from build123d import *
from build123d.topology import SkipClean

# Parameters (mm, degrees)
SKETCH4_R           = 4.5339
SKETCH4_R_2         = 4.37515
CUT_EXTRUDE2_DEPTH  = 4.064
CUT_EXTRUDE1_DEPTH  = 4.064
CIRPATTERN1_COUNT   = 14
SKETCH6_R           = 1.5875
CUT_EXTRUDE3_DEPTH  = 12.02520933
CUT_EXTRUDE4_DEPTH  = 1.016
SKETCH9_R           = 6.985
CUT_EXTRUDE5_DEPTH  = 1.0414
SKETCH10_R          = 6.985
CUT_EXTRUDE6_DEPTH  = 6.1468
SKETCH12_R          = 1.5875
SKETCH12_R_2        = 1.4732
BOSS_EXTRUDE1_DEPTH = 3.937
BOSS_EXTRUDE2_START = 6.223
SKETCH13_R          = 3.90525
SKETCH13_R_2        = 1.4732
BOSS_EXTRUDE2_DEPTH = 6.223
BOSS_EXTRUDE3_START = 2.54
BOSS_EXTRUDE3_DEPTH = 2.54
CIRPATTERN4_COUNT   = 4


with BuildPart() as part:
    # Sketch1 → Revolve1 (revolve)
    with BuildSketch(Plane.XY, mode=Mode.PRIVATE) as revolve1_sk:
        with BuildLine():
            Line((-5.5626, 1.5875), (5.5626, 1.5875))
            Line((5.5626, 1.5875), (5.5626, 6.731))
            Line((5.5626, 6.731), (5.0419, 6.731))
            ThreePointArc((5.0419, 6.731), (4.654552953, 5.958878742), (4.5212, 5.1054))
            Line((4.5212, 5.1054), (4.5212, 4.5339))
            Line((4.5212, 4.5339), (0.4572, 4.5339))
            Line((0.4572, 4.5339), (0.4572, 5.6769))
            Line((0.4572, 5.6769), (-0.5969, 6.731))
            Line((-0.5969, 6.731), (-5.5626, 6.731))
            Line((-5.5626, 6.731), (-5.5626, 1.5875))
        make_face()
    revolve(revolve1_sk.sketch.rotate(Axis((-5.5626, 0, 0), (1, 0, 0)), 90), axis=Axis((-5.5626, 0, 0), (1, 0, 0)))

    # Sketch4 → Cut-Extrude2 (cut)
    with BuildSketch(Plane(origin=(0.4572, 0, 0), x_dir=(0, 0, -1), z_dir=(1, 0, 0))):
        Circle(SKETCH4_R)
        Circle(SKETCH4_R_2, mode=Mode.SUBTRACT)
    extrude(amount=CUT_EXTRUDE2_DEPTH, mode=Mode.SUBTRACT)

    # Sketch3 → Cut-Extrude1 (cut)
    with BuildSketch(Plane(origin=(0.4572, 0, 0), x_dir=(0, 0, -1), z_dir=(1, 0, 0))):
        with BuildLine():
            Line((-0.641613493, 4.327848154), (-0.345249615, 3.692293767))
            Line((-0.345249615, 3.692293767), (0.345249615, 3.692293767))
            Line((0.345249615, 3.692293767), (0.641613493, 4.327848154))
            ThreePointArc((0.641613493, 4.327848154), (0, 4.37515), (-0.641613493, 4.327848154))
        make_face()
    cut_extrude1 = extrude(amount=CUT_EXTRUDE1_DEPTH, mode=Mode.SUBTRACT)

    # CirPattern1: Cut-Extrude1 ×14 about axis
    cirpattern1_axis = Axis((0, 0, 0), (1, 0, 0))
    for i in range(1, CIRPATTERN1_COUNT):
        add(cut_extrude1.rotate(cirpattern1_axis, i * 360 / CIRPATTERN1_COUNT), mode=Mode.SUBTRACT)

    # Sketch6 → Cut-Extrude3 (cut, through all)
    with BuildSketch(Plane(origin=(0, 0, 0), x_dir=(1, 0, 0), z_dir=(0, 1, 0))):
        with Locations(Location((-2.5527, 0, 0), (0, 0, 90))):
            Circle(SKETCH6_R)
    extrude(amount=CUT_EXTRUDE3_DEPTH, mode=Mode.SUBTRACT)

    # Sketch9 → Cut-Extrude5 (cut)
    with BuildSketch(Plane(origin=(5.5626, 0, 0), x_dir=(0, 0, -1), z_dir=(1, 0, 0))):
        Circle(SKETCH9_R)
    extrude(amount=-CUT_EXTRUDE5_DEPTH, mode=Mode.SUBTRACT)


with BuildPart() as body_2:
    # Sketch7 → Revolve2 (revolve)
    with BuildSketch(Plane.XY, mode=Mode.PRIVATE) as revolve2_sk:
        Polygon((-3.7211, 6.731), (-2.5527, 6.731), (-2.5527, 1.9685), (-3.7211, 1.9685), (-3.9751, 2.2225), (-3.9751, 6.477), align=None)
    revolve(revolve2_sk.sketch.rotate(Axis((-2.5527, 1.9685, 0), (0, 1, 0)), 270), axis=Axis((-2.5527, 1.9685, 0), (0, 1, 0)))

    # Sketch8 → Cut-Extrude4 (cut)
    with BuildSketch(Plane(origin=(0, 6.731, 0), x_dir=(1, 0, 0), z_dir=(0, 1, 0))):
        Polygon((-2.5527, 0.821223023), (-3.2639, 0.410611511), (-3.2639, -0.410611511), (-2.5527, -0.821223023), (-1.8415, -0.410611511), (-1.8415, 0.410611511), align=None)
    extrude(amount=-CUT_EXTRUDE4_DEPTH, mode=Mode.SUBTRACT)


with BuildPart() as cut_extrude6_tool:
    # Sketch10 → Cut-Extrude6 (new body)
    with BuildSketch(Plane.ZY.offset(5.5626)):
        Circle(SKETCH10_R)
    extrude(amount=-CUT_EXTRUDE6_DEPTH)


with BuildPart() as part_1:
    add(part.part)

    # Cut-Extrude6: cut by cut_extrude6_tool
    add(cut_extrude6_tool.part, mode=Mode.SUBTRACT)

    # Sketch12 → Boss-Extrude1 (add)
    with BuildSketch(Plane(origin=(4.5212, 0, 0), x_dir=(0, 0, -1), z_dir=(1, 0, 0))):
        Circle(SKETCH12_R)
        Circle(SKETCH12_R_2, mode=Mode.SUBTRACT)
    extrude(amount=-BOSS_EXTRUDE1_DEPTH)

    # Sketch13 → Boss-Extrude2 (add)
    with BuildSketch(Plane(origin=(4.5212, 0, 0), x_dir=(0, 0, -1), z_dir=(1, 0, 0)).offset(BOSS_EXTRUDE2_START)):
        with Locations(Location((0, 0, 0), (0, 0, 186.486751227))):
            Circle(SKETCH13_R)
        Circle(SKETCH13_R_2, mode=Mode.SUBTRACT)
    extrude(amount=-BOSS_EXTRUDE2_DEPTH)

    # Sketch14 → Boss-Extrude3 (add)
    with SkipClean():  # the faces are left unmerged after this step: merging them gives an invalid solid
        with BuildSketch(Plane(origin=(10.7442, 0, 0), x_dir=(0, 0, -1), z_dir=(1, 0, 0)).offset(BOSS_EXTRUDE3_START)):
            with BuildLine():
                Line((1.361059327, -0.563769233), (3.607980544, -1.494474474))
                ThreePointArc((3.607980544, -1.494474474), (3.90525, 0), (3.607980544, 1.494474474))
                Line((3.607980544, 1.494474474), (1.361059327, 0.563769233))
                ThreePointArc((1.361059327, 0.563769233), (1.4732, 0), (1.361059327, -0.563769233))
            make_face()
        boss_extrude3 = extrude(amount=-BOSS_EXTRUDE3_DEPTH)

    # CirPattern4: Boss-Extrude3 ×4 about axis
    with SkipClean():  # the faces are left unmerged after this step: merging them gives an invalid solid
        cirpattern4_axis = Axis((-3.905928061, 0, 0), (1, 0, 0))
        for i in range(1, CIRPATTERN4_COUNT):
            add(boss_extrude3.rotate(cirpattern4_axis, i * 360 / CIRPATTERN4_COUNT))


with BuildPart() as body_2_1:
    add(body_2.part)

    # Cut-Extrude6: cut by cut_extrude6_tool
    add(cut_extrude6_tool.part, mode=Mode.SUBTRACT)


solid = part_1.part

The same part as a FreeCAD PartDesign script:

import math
import FreeCAD as App
import Part
import Sketcher

V = App.Vector
Q = App.Units.Quantity

doc = App.newDocument("Part")
body = doc.addObject("PartDesign::Body", "Body")

# Sketch on XY plane
sketch1 = body.newObject("Sketcher::SketchObject", "Sketch")
sketch1.AttachmentSupport = (doc.getObject("XY_Plane"), [""])
sketch1.MapMode = "FlatFace"
sketch1.addGeometry([
    Part.LineSegment(V(-5.5626, 1.5875, 0), V(5.5626, 1.5875, 0)),  # 0
    Part.LineSegment(V(5.5626, 1.5875, 0), V(5.5626, 6.731, 0)),  # 1
    Part.LineSegment(V(5.5626, 6.731, 0), V(5.0419, 6.731, 0)),  # 2
    Part.ArcOfCircle(Part.Circle(V(7.319072, 5.1054, 0), V(0, 0, 1), 2.797872), math.radians(144.478176), math.radians(180)),  # 3
    Part.LineSegment(V(4.5212, 5.1054, 0), V(4.5212, 4.5339, 0)),  # 4
    Part.LineSegment(V(4.5212, 4.5339, 0), V(0.4572, 4.5339, 0)),  # 5
    Part.LineSegment(V(0.4572, 4.5339, 0), V(0.4572, 5.6769, 0)),  # 6
    Part.LineSegment(V(0.4572, 5.6769, 0), V(-0.5969, 6.731, 0)),  # 7
    Part.LineSegment(V(-0.5969, 6.731, 0), V(-5.5626, 6.731, 0)),  # 8
    Part.LineSegment(V(-5.5626, 6.731, 0), V(-5.5626, 1.5875, 0)),  # 9
], False)
sketch1.addConstraint([
    Sketcher.Constraint("Coincident", 0, 2, 1, 1),
    Sketcher.Constraint("Coincident", 1, 2, 2, 1),
    Sketcher.Constraint("Coincident", 2, 2, 3, 1),
    Sketcher.Constraint("Tangent", 3, 2, 4, 1),
    Sketcher.Constraint("Coincident", 4, 2, 5, 1),
    Sketcher.Constraint("Coincident", 5, 2, 6, 1),
    Sketcher.Constraint("Coincident", 6, 2, 7, 1),
    Sketcher.Constraint("Coincident", 7, 2, 8, 1),
    Sketcher.Constraint("Coincident", 8, 2, 9, 1),
    Sketcher.Constraint("Coincident", 9, 2, 0, 1),
    Sketcher.Constraint("Horizontal", 0),
    Sketcher.Constraint("Vertical", 1),
    Sketcher.Constraint("Horizontal", 2),
    Sketcher.Constraint("Vertical", 4),
    Sketcher.Constraint("Horizontal", 5),
    Sketcher.Constraint("Vertical", 6),
    Sketcher.Constraint("Horizontal", 8),
    Sketcher.Constraint("Vertical", 9),
    Sketcher.Constraint("Symmetric", 1, 2, 8, 2, -2),
    Sketcher.Constraint("Angle", 7, Q("135 deg")),
    Sketcher.Constraint("DistanceX", 5, 2, 5, 1, Q("0.16 in")),
    Sketcher.Constraint("DistanceX", 0, 1, 0, 2, Q("0.438 in")),
    Sketcher.Constraint("DistanceY", 6, 1, 6, 2, Q("0.045 in")),
    Sketcher.Constraint("DistanceX", 2, 2, 2, 1, Q("0.0205 in")),
    Sketcher.Constraint("DistanceX", 8, 2, 8, 1, Q("0.1955 in")),
    Sketcher.Constraint("DistanceY", 1, 1, 1, 2, Q("0.2025 in")),
    Sketcher.Constraint("DistanceY", 4, 2, 4, 1, Q("0.0225 in")),
    Sketcher.Constraint("DistanceY", -1, 1, 3, 3, Q("0.201 in")),
    Sketcher.Constraint("DistanceY", -1, 1, 0, 2, Q("0.0625 in")),
])
revolution = body.newObject("PartDesign::Revolution", "Revolution")
revolution.Profile = sketch1
revolution.ReferenceAxis = (sketch1, ["H_Axis"])
revolution.Angle = 360

# Sketch on YZ plane
sketch2 = body.newObject("Sketcher::SketchObject", "Sketch001")
sketch2.AttachmentSupport = (doc.getObject("YZ_Plane"), [""])
sketch2.MapMode = "FlatFace"
sketch2.AttachmentOffset = App.Placement(V(0, 0, 0.018 * 25.4), App.Rotation())
sketch2.addGeometry([
    Part.Circle(V(0, 0, 0), V(0, 0, 1), 4.5339),
    Part.Circle(V(0, 0, 0), V(0, 0, 1), 4.37515),
], False)
sketch2.addConstraint([
    Sketcher.Constraint("Coincident", 0, 3, -1, 1),
    Sketcher.Constraint("Coincident", 1, 3, -1, 1),
    Sketcher.Constraint("Diameter", 0, Q("0.357 in")),
    Sketcher.Constraint("Diameter", 1, Q("0.3445 in")),
])
pocket1 = body.newObject("PartDesign::Pocket", "Pocket")
pocket1.Profile = sketch2
pocket1.Length = Q("0.16 in")
pocket1.Reversed = True

# Sketch on YZ plane
sketch3 = body.newObject("Sketcher::SketchObject", "Sketch002")
sketch3.AttachmentSupport = (doc.getObject("YZ_Plane"), [""])
sketch3.MapMode = "FlatFace"
sketch3.AttachmentOffset = App.Placement(V(0, 0, 0.018 * 25.4), App.Rotation())
sketch3.addGeometry([
    Part.LineSegment(V(4.327848, 0.641613, 0), V(3.692294, 0.34525, 0)),
    Part.LineSegment(V(3.692294, 0.34525, 0), V(3.692294, -0.34525, 0)),
    Part.LineSegment(V(3.692294, -0.34525, 0), V(4.327848, -0.641613, 0)),
    Part.ArcOfCircle(Part.Circle(V(0, 0, 0), V(0, 0, 1), 4.37515), math.radians(-8.432809), math.radians(8.432809)),
], False)
sketch3.addConstraint([
    Sketcher.Constraint("Coincident", 0, 2, 1, 1),
    Sketcher.Constraint("Coincident", 1, 2, 2, 1),
    Sketcher.Constraint("Coincident", 2, 2, 3, 1),
    Sketcher.Constraint("Coincident", 3, 2, 0, 1),
    Sketcher.Constraint("Vertical", 1),
    Sketcher.Constraint("Coincident", 3, 3, -1, 1),
    Sketcher.Constraint("Vertical", 2, 2, 3, 2),
    Sketcher.Constraint("Equal", 0, 2),
    Sketcher.Constraint("Angle", 0, Q("-155 deg")),
    Sketcher.Constraint("Radius", 3, Q("4.37515 mm")),
    Sketcher.Constraint("DistanceY", 1, 2, 1, 1, Q("0.690499 mm")),
    Sketcher.Constraint("DistanceX", -1, 1, 2, 2, Q("4.327848 mm")),
])
pocket2 = body.newObject("PartDesign::Pocket", "Pocket001")
pocket2.Profile = sketch3
pocket2.Length = Q("0.16 in")
pocket2.Reversed = True
doc.recompute()

polarpattern = body.newObject("PartDesign::PolarPattern", "PolarPattern")
polarpattern.Originals = [pocket2]
polarpattern.Axis = (doc.getObject("X_Axis"), [""])
polarpattern.Angle = 360
polarpattern.Occurrences = 14
body.Tip = polarpattern

# Sketch on XZ plane
sketch4 = body.newObject("Sketcher::SketchObject", "Sketch003")
sketch4.AttachmentSupport = (doc.getObject("XZ_Plane"), [""])
sketch4.MapMode = "FlatFace"
sketch4.addGeometry(Part.Circle(V(-2.5527, 0, 0), V(0, 0, 1), 1.5875), False)
sketch4.addConstraint([
    Sketcher.Constraint("PointOnObject", 0, 3, -1),
    Sketcher.Constraint("Diameter", 0, Q("0.125 in")),
    Sketcher.Constraint("DistanceX", 0, 3, -1, 1, Q("0.1005 in")),
])
pocket3 = body.newObject("PartDesign::Pocket", "Pocket002")
pocket3.Profile = sketch4
pocket3.Type = "ThroughAll"

# Sketch on YZ plane
sketch5 = body.newObject("Sketcher::SketchObject", "Sketch004")
sketch5.AttachmentSupport = (doc.getObject("YZ_Plane"), [""])
sketch5.MapMode = "FlatFace"
sketch5.AttachmentOffset = App.Placement(V(0, 0, 0.219 * 25.4), App.Rotation())
sketch5.addGeometry(Part.Circle(V(0, 0, 0), V(0, 0, 1), 6.985), False)
sketch5.addConstraint([
    Sketcher.Constraint("Coincident", 0, 3, -1, 1),
    Sketcher.Constraint("Diameter", 0, Q("0.55 in")),
])
pocket4 = body.newObject("PartDesign::Pocket", "Pocket003")
pocket4.Profile = sketch5
pocket4.Length = Q("0.041 in")
body2 = doc.addObject("PartDesign::Body", "Body001")

# Sketch on XY plane
sketch6 = body2.newObject("Sketcher::SketchObject", "Sketch005")
sketch6.AttachmentSupport = (doc.getObject("XY_Plane001"), [""])
sketch6.MapMode = "FlatFace"
sketch6.addGeometry([
    Part.LineSegment(V(-2.5527, 6.731, 0), V(-3.7211, 6.731, 0)),  # 0
    Part.LineSegment(V(-3.7211, 6.731, 0), V(-3.9751, 6.477, 0)),  # 1
    Part.LineSegment(V(-3.9751, 6.477, 0), V(-3.9751, 2.2225, 0)),  # 2
    Part.LineSegment(V(-3.9751, 2.2225, 0), V(-3.7211, 1.9685, 0)),  # 3
    Part.LineSegment(V(-3.7211, 1.9685, 0), V(-2.5527, 1.9685, 0)),  # 4
    Part.LineSegment(V(-2.5527, 1.9685, 0), V(-2.5527, 6.731, 0)),  # 5
], False)
sketch6.addGeometry(Part.LineSegment(V(-2.5527, 1.9685, 0), V(-2.5527, 6.731, 0)), True)  # axis
sketch6.addConstraint([
    Sketcher.Constraint("Coincident", 0, 2, 1, 1),
    Sketcher.Constraint("Coincident", 1, 2, 2, 1),
    Sketcher.Constraint("Coincident", 2, 2, 3, 1),
    Sketcher.Constraint("Coincident", 3, 2, 4, 1),
    Sketcher.Constraint("Coincident", 4, 2, 5, 1),
    Sketcher.Constraint("Coincident", 5, 2, 0, 1),
    Sketcher.Constraint("Horizontal", 0),
    Sketcher.Constraint("Vertical", 2),
    Sketcher.Constraint("Horizontal", 4),
    Sketcher.Constraint("Vertical", 5),
    Sketcher.Constraint("Vertical", 6),
    Sketcher.Constraint("Coincident", 6, 1, 4, 2),
    Sketcher.Constraint("Perpendicular", 1, 3),
    Sketcher.Constraint("Horizontal", 0, 2, 6, 2),
    Sketcher.Constraint("Vertical", 0, 2, 3, 2),
    Sketcher.Constraint("Equal", 1, 3),
    Sketcher.Constraint("DistanceX", 0, 2, 0, 1, Q("0.046 in")),
    Sketcher.Constraint("DistanceY", 5, 1, 5, 2, Q("0.1875 in")),
    Sketcher.Constraint("DistanceX", 1, 2, 0, 2, Q("0.01 in")),
    Sketcher.Constraint("DistanceY", -1, 1, 0, 2, Q("0.265 in")),
    Sketcher.Constraint("DistanceX", 0, 2, -1, 1, Q("0.1465 in")),
])
revolution2 = body2.newObject("PartDesign::Revolution", "Revolution001")
revolution2.Profile = sketch6
revolution2.ReferenceAxis = (sketch6, ["Axis0"])
revolution2.Angle = 360

# Sketch on XZ plane
sketch7 = body2.newObject("Sketcher::SketchObject", "Sketch006")
sketch7.AttachmentSupport = (doc.getObject("XZ_Plane001"), [""])
sketch7.MapMode = "FlatFace"
sketch7.AttachmentOffset = App.Placement(V(0, 0, -0.265 * 25.4), App.Rotation())
sketch7.addGeometry([
    Part.LineSegment(V(-2.5527, -0.821223, 0), V(-3.2639, -0.410612, 0)),  # 0
    Part.LineSegment(V(-3.2639, -0.410612, 0), V(-3.2639, 0.410612, 0)),  # 1
    Part.LineSegment(V(-3.2639, 0.410612, 0), V(-2.5527, 0.821223, 0)),  # 2
    Part.LineSegment(V(-2.5527, 0.821223, 0), V(-1.8415, 0.410612, 0)),  # 3
    Part.LineSegment(V(-1.8415, 0.410612, 0), V(-1.8415, -0.410612, 0)),  # 4
    Part.LineSegment(V(-1.8415, -0.410612, 0), V(-2.5527, -0.821223, 0)),  # 5
], False)
sketch7.addConstraint([
    Sketcher.Constraint("Coincident", 0, 2, 1, 1),
    Sketcher.Constraint("Coincident", 1, 2, 2, 1),
    Sketcher.Constraint("Coincident", 2, 2, 3, 1),
    Sketcher.Constraint("Coincident", 3, 2, 4, 1),
    Sketcher.Constraint("Coincident", 4, 2, 5, 1),
    Sketcher.Constraint("Coincident", 5, 2, 0, 1),
    Sketcher.Constraint("Vertical", 1),
    Sketcher.Constraint("Vertical", 4),
    Sketcher.Constraint("Symmetric", 2, 2, 5, 2, -1),
    Sketcher.Constraint("Parallel", 0, 3),
    Sketcher.Constraint("Parallel", 2, 5),
    Sketcher.Constraint("Horizontal", 1, 2, 3, 2),
    Sketcher.Constraint("Horizontal", 0, 2, 4, 2),
    Sketcher.Constraint("Angle", 0, Q("150 deg")),
    Sketcher.Constraint("DistanceX", 1, 2, 2, 2, Q("0.028 in")),
    Sketcher.Constraint("DistanceX", 0, 2, -1, 1, Q("0.1285 in")),
    Sketcher.Constraint("DistanceY", 1, 1, 1, 2, Q("0.821223 mm")),
])
pocket5 = body2.newObject("PartDesign::Pocket", "Pocket004")
pocket5.Profile = sketch7
pocket5.Length = Q("0.04 in")
pocket5.Reversed = True
body3 = doc.addObject("PartDesign::Body", "Body002")

# Sketch on YZ plane
sketch8 = body3.newObject("Sketcher::SketchObject", "Sketch007")
sketch8.AttachmentSupport = (doc.getObject("YZ_Plane002"), [""])
sketch8.MapMode = "FlatFace"
sketch8.AttachmentOffset = App.Placement(V(0, 0, -0.219 * 25.4), App.Rotation())
sketch8.addGeometry(Part.Circle(V(0, 0, 0), V(0, 0, 1), 6.985), False)
sketch8.addConstraint([
    Sketcher.Constraint("Coincident", 0, 3, -1, 1),
    Sketcher.Constraint("Diameter", 0, Q("0.55 in")),
])
pad1 = body3.newObject("PartDesign::Pad", "Pad")
pad1.Profile = sketch8
pad1.Length = Q("0.242 in")
doc.recompute()

body4 = doc.addObject("PartDesign::Body", "Body003")
body4.BaseFeature = body3
boolean = body.newObject("PartDesign::Boolean", "Boolean")
boolean.Type = "Cut"
boolean.addObjects([body4])
doc.recompute()

# Sketch on YZ plane
sketch9 = body.newObject("Sketcher::SketchObject", "Sketch008")
sketch9.AttachmentSupport = (doc.getObject("YZ_Plane"), [""])
sketch9.MapMode = "FlatFace"
sketch9.AttachmentOffset = App.Placement(V(0, 0, 0.178 * 25.4), App.Rotation())
sketch9.addGeometry([
    Part.Circle(V(0, 0, 0), V(0, 0, 1), 1.5875),
    Part.Circle(V(0, 0, 0), V(0, 0, 1), 1.4732),
], False)
sketch9.addConstraint([
    Sketcher.Constraint("Coincident", 0, 3, -1, 1),
    Sketcher.Constraint("Coincident", 1, 3, -1, 1),
    Sketcher.Constraint("Diameter", 0, Q("0.125 in")),
    Sketcher.Constraint("Diameter", 1, Q("0.116 in")),
])
pad2 = body.newObject("PartDesign::Pad", "Pad001")
pad2.Profile = sketch9
pad2.Length = Q("0.155 in")
pad2.Reversed = True

# Sketch on YZ plane
sketch10 = body.newObject("Sketcher::SketchObject", "Sketch009")
sketch10.AttachmentSupport = (doc.getObject("YZ_Plane"), [""])
sketch10.MapMode = "FlatFace"
sketch10.AttachmentOffset = App.Placement(V(0, 0, 0.423 * 25.4), App.Rotation())
sketch10.addGeometry([
    Part.Circle(V(0, 0, 0), V(0, 0, 1), 3.90525),
    Part.Circle(V(0, 0, 0), V(0, 0, 1), 1.4732),
], False)
sketch10.addConstraint([
    Sketcher.Constraint("Coincident", 0, 3, -1, 1),
    Sketcher.Constraint("Coincident", 1, 3, -1, 1),
    Sketcher.Constraint("Diameter", 1, Q("0.116 in")),
    Sketcher.Constraint("Diameter", 0, Q("0.3075 in")),
])
pad3 = body.newObject("PartDesign::Pad", "Pad002")
pad3.Profile = sketch10
pad3.Length = Q("0.245 in")
pad3.Reversed = True

# Sketch on YZ plane
sketch11 = body.newObject("Sketcher::SketchObject", "Sketch010")
sketch11.AttachmentSupport = (doc.getObject("YZ_Plane"), [""])
sketch11.MapMode = "FlatFace"
sketch11.AttachmentOffset = App.Placement(V(0, 0, 0.523 * 25.4), App.Rotation())
sketch11.addGeometry([
    Part.LineSegment(V(-0.563769, -1.361059, 0), V(-1.494474, -3.607981, 0)),
    Part.ArcOfCircle(Part.Circle(V(0, 0, 0), V(0, 0, 1), 3.90525), math.radians(-112.5), math.radians(-67.5)),
    Part.LineSegment(V(1.494474, -3.607981, 0), V(0.563769, -1.361059, 0)),
    Part.ArcOfCircle(Part.Circle(V(0, 0, 0), V(0, 0, 1), 1.4732), math.radians(-112.5), math.radians(-67.5)),
], False)
sketch11.addConstraint([
    Sketcher.Constraint("Coincident", 0, 2, 1, 1),
    Sketcher.Constraint("Coincident", 1, 2, 2, 1),
    Sketcher.Constraint("Coincident", 2, 2, 3, 2),
    Sketcher.Constraint("Coincident", 3, 1, 0, 1),
    Sketcher.Constraint("Coincident", 1, 3, -1, 1),
    Sketcher.Constraint("Coincident", 3, 3, -1, 1),
    Sketcher.Constraint("Horizontal", 0, 2, 1, 2),
    Sketcher.Constraint("Horizontal", 2, 2, 3, 1),
    Sketcher.Constraint("Radius", 3, Q("0.058 in")),
    Sketcher.Constraint("Angle", 0, Q("-112.5 deg")),
    Sketcher.Constraint("Radius", 1, Q("3.90525 mm")),
    Sketcher.Constraint("DistanceY", 0, 2, -1, 1, Q("3.607981 mm")),
])
pad4 = body.newObject("PartDesign::Pad", "Pad003")
pad4.Profile = sketch11
pad4.Length = Q("0.1 in")
pad4.Reversed = True
doc.recompute()

polarpattern2 = body.newObject("PartDesign::PolarPattern", "PolarPattern001")
polarpattern2.Originals = [pad4]
polarpattern2.Axis = (doc.getObject("X_Axis"), [""])
polarpattern2.Angle = 360
polarpattern2.Occurrences = 4
body.Tip = polarpattern2
doc.recompute()

boolean2 = body2.newObject("PartDesign::Boolean", "Boolean001")
boolean2.Type = "Cut"
boolean2.addObjects([body3])

doc.recompute()
